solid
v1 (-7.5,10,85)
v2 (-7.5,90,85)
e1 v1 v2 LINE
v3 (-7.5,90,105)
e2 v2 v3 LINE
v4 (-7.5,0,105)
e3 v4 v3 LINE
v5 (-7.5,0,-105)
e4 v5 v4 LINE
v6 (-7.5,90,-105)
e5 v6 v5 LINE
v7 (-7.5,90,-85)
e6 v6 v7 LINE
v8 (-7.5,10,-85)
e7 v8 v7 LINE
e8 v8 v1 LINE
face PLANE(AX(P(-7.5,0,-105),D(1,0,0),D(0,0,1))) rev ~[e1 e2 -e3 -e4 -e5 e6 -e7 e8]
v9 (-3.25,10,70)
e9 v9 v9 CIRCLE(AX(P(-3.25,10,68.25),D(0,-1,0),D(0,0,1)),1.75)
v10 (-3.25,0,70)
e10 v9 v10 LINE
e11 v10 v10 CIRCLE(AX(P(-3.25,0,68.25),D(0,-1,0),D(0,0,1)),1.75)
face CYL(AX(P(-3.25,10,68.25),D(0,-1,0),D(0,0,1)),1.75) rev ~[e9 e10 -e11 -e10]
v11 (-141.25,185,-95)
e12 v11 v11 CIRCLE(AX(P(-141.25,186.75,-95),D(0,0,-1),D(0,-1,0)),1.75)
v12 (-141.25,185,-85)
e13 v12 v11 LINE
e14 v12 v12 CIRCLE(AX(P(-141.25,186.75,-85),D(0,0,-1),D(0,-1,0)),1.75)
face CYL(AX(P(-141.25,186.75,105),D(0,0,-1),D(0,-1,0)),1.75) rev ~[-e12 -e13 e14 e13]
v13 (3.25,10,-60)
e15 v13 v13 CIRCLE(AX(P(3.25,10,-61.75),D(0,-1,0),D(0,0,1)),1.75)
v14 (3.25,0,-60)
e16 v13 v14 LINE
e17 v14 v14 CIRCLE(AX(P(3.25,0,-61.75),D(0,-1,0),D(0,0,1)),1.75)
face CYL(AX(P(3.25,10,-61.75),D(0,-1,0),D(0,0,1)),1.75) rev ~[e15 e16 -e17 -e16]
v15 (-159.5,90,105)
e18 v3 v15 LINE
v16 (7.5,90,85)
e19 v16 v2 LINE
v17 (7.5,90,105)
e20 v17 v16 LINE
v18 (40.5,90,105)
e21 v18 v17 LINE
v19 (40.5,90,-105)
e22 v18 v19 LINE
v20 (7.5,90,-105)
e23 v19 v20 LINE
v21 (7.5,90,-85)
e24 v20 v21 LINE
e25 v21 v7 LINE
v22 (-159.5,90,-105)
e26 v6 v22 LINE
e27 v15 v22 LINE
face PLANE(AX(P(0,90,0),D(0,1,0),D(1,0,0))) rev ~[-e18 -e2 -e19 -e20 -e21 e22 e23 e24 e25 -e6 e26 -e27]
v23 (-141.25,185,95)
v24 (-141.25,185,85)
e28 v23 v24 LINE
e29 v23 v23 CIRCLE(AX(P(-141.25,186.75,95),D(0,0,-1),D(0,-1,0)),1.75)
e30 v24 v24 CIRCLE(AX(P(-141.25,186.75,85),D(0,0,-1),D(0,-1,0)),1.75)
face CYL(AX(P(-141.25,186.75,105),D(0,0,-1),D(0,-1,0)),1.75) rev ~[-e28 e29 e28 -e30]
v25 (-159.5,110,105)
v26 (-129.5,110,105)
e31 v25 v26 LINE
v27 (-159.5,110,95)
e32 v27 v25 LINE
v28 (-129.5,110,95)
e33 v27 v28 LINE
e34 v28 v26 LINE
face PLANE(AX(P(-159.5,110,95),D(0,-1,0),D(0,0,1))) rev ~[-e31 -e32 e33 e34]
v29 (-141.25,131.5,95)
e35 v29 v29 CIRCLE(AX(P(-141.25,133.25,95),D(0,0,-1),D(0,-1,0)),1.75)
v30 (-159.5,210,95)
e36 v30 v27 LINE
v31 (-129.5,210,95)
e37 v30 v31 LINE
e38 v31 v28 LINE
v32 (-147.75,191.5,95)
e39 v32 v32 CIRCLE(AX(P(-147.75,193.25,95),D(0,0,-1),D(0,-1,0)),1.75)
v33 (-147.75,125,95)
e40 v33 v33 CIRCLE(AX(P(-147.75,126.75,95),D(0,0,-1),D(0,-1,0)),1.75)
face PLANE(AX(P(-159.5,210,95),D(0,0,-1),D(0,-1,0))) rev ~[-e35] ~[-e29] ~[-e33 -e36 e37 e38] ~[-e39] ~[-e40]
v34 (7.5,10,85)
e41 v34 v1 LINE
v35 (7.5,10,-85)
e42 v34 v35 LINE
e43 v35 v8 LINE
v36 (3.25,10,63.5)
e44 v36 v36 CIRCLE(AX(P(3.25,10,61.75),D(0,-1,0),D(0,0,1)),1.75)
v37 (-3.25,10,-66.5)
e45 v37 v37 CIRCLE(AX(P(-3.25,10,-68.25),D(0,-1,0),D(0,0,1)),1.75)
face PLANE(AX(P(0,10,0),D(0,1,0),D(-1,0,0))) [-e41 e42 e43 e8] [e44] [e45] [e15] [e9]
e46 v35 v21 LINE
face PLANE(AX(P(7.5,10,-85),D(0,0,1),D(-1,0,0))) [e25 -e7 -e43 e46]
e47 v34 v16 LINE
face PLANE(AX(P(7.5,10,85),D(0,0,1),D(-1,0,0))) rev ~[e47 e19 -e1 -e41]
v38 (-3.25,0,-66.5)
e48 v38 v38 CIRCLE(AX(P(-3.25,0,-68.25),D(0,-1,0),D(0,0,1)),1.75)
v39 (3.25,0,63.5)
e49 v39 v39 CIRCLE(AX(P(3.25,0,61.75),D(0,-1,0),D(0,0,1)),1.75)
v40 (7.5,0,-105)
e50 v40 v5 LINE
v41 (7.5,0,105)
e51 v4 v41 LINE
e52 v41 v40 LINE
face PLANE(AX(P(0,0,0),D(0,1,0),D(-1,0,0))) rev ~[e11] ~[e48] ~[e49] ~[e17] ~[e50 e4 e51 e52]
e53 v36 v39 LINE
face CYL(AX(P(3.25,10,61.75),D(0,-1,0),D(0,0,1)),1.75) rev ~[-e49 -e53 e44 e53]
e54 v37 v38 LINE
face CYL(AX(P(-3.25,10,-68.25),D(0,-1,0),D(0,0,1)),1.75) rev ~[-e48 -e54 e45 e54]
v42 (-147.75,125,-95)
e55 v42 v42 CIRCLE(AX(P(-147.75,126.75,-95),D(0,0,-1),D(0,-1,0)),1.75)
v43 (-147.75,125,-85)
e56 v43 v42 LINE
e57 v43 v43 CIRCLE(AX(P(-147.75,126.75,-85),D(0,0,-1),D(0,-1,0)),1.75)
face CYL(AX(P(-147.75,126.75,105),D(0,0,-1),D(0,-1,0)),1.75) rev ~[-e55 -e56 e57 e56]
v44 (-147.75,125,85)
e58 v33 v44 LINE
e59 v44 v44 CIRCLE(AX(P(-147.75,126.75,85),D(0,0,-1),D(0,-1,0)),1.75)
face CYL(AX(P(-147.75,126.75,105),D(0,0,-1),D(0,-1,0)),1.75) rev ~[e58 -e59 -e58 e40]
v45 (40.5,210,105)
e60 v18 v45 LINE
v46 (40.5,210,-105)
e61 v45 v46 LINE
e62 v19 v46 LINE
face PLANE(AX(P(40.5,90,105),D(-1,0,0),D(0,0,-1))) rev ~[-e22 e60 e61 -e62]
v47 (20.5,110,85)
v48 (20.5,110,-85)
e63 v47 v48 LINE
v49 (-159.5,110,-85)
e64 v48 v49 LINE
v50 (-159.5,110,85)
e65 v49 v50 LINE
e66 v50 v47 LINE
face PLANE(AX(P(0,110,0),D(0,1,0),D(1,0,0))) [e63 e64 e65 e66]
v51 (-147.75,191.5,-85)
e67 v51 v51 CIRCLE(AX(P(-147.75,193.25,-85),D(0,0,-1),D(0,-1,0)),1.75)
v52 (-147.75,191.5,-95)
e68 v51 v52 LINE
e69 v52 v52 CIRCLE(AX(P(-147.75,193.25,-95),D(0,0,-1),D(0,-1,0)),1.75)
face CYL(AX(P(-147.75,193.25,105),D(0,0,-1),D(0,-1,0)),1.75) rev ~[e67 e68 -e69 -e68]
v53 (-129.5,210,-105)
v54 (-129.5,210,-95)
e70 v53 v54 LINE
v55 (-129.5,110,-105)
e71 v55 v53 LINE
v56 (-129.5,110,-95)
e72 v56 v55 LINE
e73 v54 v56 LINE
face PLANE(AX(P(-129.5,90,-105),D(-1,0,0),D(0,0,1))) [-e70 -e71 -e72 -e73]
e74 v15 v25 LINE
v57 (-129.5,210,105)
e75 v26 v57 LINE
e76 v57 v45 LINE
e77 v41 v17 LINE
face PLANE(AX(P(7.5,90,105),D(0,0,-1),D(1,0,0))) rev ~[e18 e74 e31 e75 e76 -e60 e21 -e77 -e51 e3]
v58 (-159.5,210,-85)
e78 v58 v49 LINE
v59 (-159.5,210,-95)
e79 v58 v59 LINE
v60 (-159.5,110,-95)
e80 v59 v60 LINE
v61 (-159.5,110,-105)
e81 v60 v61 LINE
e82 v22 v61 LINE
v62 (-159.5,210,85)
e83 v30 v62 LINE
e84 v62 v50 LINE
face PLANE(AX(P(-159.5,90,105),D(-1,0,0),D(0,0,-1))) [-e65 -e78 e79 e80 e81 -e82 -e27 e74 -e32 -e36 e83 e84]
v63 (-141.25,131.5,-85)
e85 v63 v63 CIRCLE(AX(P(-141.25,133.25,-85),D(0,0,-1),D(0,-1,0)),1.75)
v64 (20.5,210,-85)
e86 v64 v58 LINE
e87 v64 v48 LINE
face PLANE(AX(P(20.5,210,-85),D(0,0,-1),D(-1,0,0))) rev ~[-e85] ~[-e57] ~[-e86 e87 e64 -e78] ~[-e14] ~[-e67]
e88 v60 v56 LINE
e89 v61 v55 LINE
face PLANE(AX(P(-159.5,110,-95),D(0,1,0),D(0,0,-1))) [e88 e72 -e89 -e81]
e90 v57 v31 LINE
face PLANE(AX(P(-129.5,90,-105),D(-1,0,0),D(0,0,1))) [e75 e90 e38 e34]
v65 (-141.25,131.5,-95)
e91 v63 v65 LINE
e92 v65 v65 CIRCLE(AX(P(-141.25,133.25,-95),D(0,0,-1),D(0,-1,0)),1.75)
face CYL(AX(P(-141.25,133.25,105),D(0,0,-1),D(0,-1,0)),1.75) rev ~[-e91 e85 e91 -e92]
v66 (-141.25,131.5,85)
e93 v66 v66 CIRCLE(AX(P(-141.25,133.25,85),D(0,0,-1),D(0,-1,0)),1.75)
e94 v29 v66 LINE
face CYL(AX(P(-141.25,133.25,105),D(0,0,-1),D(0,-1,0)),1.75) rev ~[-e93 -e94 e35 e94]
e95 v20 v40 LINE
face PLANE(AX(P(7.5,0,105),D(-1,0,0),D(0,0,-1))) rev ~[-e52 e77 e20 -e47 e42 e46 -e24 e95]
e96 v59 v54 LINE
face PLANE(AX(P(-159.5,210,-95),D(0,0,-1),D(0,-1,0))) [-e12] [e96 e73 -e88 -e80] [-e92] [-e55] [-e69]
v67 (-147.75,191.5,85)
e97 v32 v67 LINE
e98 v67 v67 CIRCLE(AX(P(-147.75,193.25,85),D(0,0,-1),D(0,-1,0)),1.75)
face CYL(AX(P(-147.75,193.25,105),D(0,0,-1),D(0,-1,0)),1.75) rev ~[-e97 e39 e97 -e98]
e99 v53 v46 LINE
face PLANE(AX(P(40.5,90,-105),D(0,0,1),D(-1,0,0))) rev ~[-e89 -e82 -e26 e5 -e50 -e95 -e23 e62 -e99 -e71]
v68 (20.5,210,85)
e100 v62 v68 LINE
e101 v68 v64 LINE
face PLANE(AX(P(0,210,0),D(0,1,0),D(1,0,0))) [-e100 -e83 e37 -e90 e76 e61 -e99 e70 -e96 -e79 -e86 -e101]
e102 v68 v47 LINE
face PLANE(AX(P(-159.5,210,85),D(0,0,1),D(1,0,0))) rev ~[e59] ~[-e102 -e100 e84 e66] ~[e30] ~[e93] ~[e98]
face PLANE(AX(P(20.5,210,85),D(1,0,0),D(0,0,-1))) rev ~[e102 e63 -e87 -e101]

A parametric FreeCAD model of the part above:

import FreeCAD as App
import Part
import Sketcher
Q = App.Units.Quantity

doc = App.newDocument("Part")
body = doc.addObject("PartDesign::Body", "Body")

# Sketch on XZ plane
sketch1 = body.newObject("Sketcher::SketchObject", "Sketch")
sketch1.AttachmentSupport = (doc.getObject("XZ_Plane"), [""])
sketch1.MapMode = "FlatFace"
sketch1.addGeometry([
    Part.LineSegment(App.Vector(-8, -105, 0), App.Vector(-8, 105, 0)),
    Part.LineSegment(App.Vector(-8, 105, 0), App.Vector(8, 105, 0)),
    Part.LineSegment(App.Vector(8, 105, 0), App.Vector(8, -105, 0)),
    Part.LineSegment(App.Vector(8, -105, 0), App.Vector(-8, -105, 0)),
], False)
sketch1.addConstraint([
    Sketcher.Constraint("Coincident", 0, 2, 1, 1),
    Sketcher.Constraint("Coincident", 1, 2, 2, 1),
    Sketcher.Constraint("Coincident", 2, 2, 3, 1),
    Sketcher.Constraint("Coincident", 3, 2, 0, 1),
    Sketcher.Constraint("Vertical", 0),
    Sketcher.Constraint("Horizontal", 1),
    Sketcher.Constraint("Vertical", 2),
    Sketcher.Constraint("Horizontal", 3),
    Sketcher.Constraint("Symmetric", 0, 2, 2, 2, -1, 1),
    Sketcher.Constraint("DistanceX", 1, 1, 1, 2, Q("15 mm")),
    Sketcher.Constraint("DistanceY", 0, 1, 0, 2, Q("210 mm")),
])
pad1 = body.newObject("PartDesign::Pad", "Pad")
pad1.Profile = sketch1
pad1.Length = 10
pad1.Reversed = True

# Sketch on XZ plane
sketch2 = body.newObject("Sketcher::SketchObject", "Sketch001")
sketch2.AttachmentSupport = (doc.getObject("XZ_Plane"), [""])
sketch2.MapMode = "FlatFace"
sketch2.AttachmentOffset = App.Placement(App.Vector(0, 0, -10), App.Rotation())
sketch2.addGeometry([
    Part.Circle(App.Vector(3.2, -61.8, 0), App.Vector(0, 0, 1), 1.8),
    Part.Circle(App.Vector(-3.2, -68.2, 0), App.Vector(0, 0, 1), 1.8),
    Part.Circle(App.Vector(-3.2, 68.2, 0), App.Vector(0, 0, 1), 1.8),
    Part.Circle(App.Vector(3.2, 61.8, 0), App.Vector(0, 0, 1), 1.8),
], False)
sketch2.addConstraint([
    Sketcher.Constraint("Equal", 0, 1),
    Sketcher.Constraint("Equal", 1, 2),
    Sketcher.Constraint("Equal", 2, 3),
    Sketcher.Constraint("Symmetric", 1, 3, 2, 3, -1),
    Sketcher.Constraint("Symmetric", 0, 3, 3, 3, -1),
    Sketcher.Constraint("Diameter", 0, Q("3.5 mm")),
    Sketcher.Constraint("DistanceY", 0, 3, 2, 3, Q("130 mm")),
    Sketcher.Constraint("DistanceX", 1, 3, 0, 3, Q("6.5 mm")),
    Sketcher.Constraint("DistanceY", 1, 3, 0, 3, Q("6.5 mm")),
    Sketcher.Constraint("DistanceX", -1, 1, 0, 3, Q("3.25 mm")),
])
doc.recompute()
hole = body.newObject("PartDesign::Hole", "Hole")
hole.Profile = sketch2
hole.ThreadType = "None"
hole.Diameter = 3.5
hole.DepthType = "ThroughAll"
hole.Reversed = True

# Sketch on XZ plane
sketch3 = body.newObject("Sketcher::SketchObject", "Sketch002")
sketch3.AttachmentSupport = (doc.getObject("XZ_Plane"), [""])
sketch3.MapMode = "FlatFace"
sketch3.AttachmentOffset = App.Placement(App.Vector(0, 0, -10), App.Rotation())
sketch3.addGeometry([
    Part.LineSegment(App.Vector(8, -105, 0), App.Vector(-8, -105, 0)),  # 0
    Part.LineSegment(App.Vector(-8, -105, 0), App.Vector(-8, -85, 0)),  # 1
    Part.LineSegment(App.Vector(-8, -85, 0), App.Vector(8, -85, 0)),  # 2
    Part.LineSegment(App.Vector(8, -85, 0), App.Vector(8, -105, 0)),  # 3
    Part.LineSegment(App.Vector(8, 85, 0), App.Vector(-8, 85, 0)),  # 4
    Part.LineSegment(App.Vector(-8, 85, 0), App.Vector(-8, 105, 0)),  # 5
    Part.LineSegment(App.Vector(-8, 105, 0), App.Vector(8, 105, 0)),  # 6
    Part.LineSegment(App.Vector(8, 105, 0), App.Vector(8, 85, 0)),  # 7
], False)
sketch3.addConstraint([
    Sketcher.Constraint("Coincident", 0, 2, 1, 1),
    Sketcher.Constraint("Coincident", 1, 2, 2, 1),
    Sketcher.Constraint("Coincident", 2, 2, 3, 1),
    Sketcher.Constraint("Coincident", 3, 2, 0, 1),
    Sketcher.Constraint("Coincident", 4, 2, 5, 1),
    Sketcher.Constraint("Coincident", 5, 2, 6, 1),
    Sketcher.Constraint("Coincident", 6, 2, 7, 1),
    Sketcher.Constraint("Coincident", 7, 2, 4, 1),
    Sketcher.Constraint("Horizontal", 0),
    Sketcher.Constraint("Vertical", 1),
    Sketcher.Constraint("Horizontal", 2),
    Sketcher.Constraint("Vertical", 3),
    Sketcher.Constraint("Horizontal", 4),
    Sketcher.Constraint("Vertical", 5),
    Sketcher.Constraint("Horizontal", 6),
    Sketcher.Constraint("Vertical", 7),
    Sketcher.Constraint("Symmetric", 2, 2, 4, 2, -1, 1),
    Sketcher.Constraint("Symmetric", 0, 2, 6, 2, -1, 1),
    Sketcher.Constraint("Vertical", 1, 2, 4, 2),
    Sketcher.Constraint("DistanceX", 0, 2, 0, 1, Q("15 mm")),
    Sketcher.Constraint("DistanceY", 1, 1, 1, 2, Q("20 mm")),
    Sketcher.Constraint("DistanceY", 0, 2, -1, 1, Q("105 mm")),
])
pad2 = body.newObject("PartDesign::Pad", "Pad001")
pad2.Profile = sketch3
pad2.Length = 80
pad2.Reversed = True

# Sketch on XZ plane
sketch4 = body.newObject("Sketcher::SketchObject", "Sketch003")
sketch4.AttachmentSupport = (doc.getObject("XZ_Plane"), [""])
sketch4.MapMode = "FlatFace"
sketch4.AttachmentOffset = App.Placement(App.Vector(0, 0, -90), App.Rotation())
sketch4.addGeometry([
    Part.LineSegment(App.Vector(40, -105, 0), App.Vector(-160, -105, 0)),
    Part.LineSegment(App.Vector(-160, -105, 0), App.Vector(-160, 105, 0)),
    Part.LineSegment(App.Vector(-160, 105, 0), App.Vector(40, 105, 0)),
    Part.LineSegment(App.Vector(40, 105, 0), App.Vector(40, -105, 0)),
], False)
sketch4.addConstraint([
    Sketcher.Constraint("Coincident", 0, 2, 1, 1),
    Sketcher.Constraint("Coincident", 1, 2, 2, 1),
    Sketcher.Constraint("Coincident", 2, 2, 3, 1),
    Sketcher.Constraint("Coincident", 3, 2, 0, 1),
    Sketcher.Constraint("Horizontal", 0),
    Sketcher.Constraint("Vertical", 1),
    Sketcher.Constraint("Horizontal", 2),
    Sketcher.Constraint("Vertical", 3),
    Sketcher.Constraint("DistanceX", 0, 2, 0, 1, Q("200 mm")),
    Sketcher.Constraint("DistanceY", 1, 1, 1, 2, Q("210 mm")),
    Sketcher.Constraint("DistanceY", 0, 2, -1, 1, Q("105 mm")),
    Sketcher.Constraint("DistanceX", 0, 2, -1, 1, Q("159.5 mm")),
])
pad3 = body.newObject("PartDesign::Pad", "Pad002")
pad3.Profile = sketch4
pad3.Length = 120
pad3.Reversed = True

# Sketch on XZ plane
sketch5 = body.newObject("Sketcher::SketchObject", "Sketch004")
sketch5.AttachmentSupport = (doc.getObject("XZ_Plane"), [""])
sketch5.MapMode = "FlatFace"
sketch5.AttachmentOffset = App.Placement(App.Vector(0, 0, -210), App.Rotation())
sketch5.addGeometry([
    Part.LineSegment(App.Vector(20, -85, 0), App.Vector(-160, -85, 0)),
    Part.LineSegment(App.Vector(-160, -85, 0), App.Vector(-160, 85, 0)),
    Part.LineSegment(App.Vector(-160, 85, 0), App.Vector(20, 85, 0)),
    Part.LineSegment(App.Vector(20, 85, 0), App.Vector(20, -85, 0)),
], False)
sketch5.addConstraint([
    Sketcher.Constraint("Coincident", 0, 2, 1, 1),
    Sketcher.Constraint("Coincident", 1, 2, 2, 1),
    Sketcher.Constraint("Coincident", 2, 2, 3, 1),
    Sketcher.Constraint("Coincident", 3, 2, 0, 1),
    Sketcher.Constraint("Horizontal", 0),
    Sketcher.Constraint("Vertical", 1),
    Sketcher.Constraint("Horizontal", 2),
    Sketcher.Constraint("Vertical", 3),
    Sketcher.Constraint("DistanceX", 0, 2, 0, 1, Q("180 mm")),
    Sketcher.Constraint("DistanceY", 1, 1, 1, 2, Q("170 mm")),
    Sketcher.Constraint("DistanceY", 0, 2, -1, 1, Q("85 mm")),
    Sketcher.Constraint("DistanceX", 0, 2, -1, 1, Q("159.5 mm")),
])
pocket1 = body.newObject("PartDesign::Pocket", "Pocket")
pocket1.Profile = sketch5
pocket1.Length = 100
pocket1.Reversed = True

# Sketch on YZ plane
sketch6 = body.newObject("Sketcher::SketchObject", "Sketch005")
sketch6.AttachmentSupport = (doc.getObject("YZ_Plane"), [""])
sketch6.MapMode = "FlatFace"
sketch6.AttachmentOffset = App.Placement(App.Vector(0, 0, -159.5), App.Rotation())
sketch6.addGeometry([
    Part.LineSegment(App.Vector(210, -95, 0), App.Vector(210, -105, 0)),  # 0
    Part.LineSegment(App.Vector(210, -105, 0), App.Vector(110, -105, 0)),  # 1
    Part.LineSegment(App.Vector(110, -105, 0), App.Vector(110, -95, 0)),  # 2
    Part.LineSegment(App.Vector(110, -95, 0), App.Vector(210, -95, 0)),  # 3
    Part.LineSegment(App.Vector(210, 105, 0), App.Vector(210, 95, 0)),  # 4
    Part.LineSegment(App.Vector(210, 95, 0), App.Vector(110, 95, 0)),  # 5
    Part.LineSegment(App.Vector(110, 95, 0), App.Vector(110, 105, 0)),  # 6
    Part.LineSegment(App.Vector(110, 105, 0), App.Vector(210, 105, 0)),  # 7
], False)
sketch6.addConstraint([
    Sketcher.Constraint("Coincident", 0, 2, 1, 1),
    Sketcher.Constraint("Coincident", 1, 2, 2, 1),
    Sketcher.Constraint("Coincident", 2, 2, 3, 1),
    Sketcher.Constraint("Coincident", 3, 2, 0, 1),
    Sketcher.Constraint("Coincident", 4, 2, 5, 1),
    Sketcher.Constraint("Coincident", 5, 2, 6, 1),
    Sketcher.Constraint("Coincident", 6, 2, 7, 1),
    Sketcher.Constraint("Coincident", 7, 2, 4, 1),
    Sketcher.Constraint("Vertical", 0),
    Sketcher.Constraint("Horizontal", 1),
    Sketcher.Constraint("Vertical", 2),
    Sketcher.Constraint("Horizontal", 3),
    Sketcher.Constraint("Vertical", 4),
    Sketcher.Constraint("Horizontal", 5),
    Sketcher.Constraint("Vertical", 6),
    Sketcher.Constraint("Horizontal", 7),
    Sketcher.Constraint("Symmetric", 3, 2, 4, 2, -1),
    Sketcher.Constraint("Symmetric", 1, 2, 6, 2, -1),
    Sketcher.Constraint("DistanceY", 0, 2, 0, 1, Q("10 mm")),
    Sketcher.Constraint("DistanceX", 1, 2, 1, 1, Q("100 mm")),
    Sketcher.Constraint("DistanceX", -1, 1, 0, 2, Q("210 mm")),
    Sketcher.Constraint("DistanceY", 0, 2, -1, 1, Q("105 mm")),
])
pocket2 = body.newObject("PartDesign::Pocket", "Pocket001")
pocket2.Profile = sketch6
pocket2.Length = 30
pocket2.Reversed = True

# Sketch on XY plane
sketch7 = body.newObject("Sketcher::SketchObject", "Sketch006")
sketch7.AttachmentSupport = (doc.getObject("XY_Plane"), [""])
sketch7.MapMode = "FlatFace"
sketch7.AttachmentOffset = App.Placement(App.Vector(0, 0, 105), App.Rotation())
sketch7.addGeometry([
    Part.Circle(App.Vector(-147.8, 193.2, 0), App.Vector(0, 0, 1), 1.8),
    Part.Circle(App.Vector(-141.2, 186.8, 0), App.Vector(0, 0, 1), 1.8),
    Part.Circle(App.Vector(-147.8, 126.8, 0), App.Vector(0, 0, 1), 1.8),
    Part.Circle(App.Vector(-141.2, 133.2, 0), App.Vector(0, 0, 1), 1.8),
], False)
sketch7.addConstraint([
    Sketcher.Constraint("Equal", 0, 1),
    Sketcher.Constraint("Equal", 1, 2),
    Sketcher.Constraint("Equal", 2, 3),
    Sketcher.Constraint("Vertical", 0, 3, 2, 3),
    Sketcher.Constraint("Vertical", 1, 3, 3, 3),
    Sketcher.Constraint("Diameter", 0, Q("3.5 mm")),
    Sketcher.Constraint("DistanceY", 2, 3, 1, 3, Q("60 mm")),
    Sketcher.Constraint("DistanceY", 3, 3, 0, 3, Q("60 mm")),
    Sketcher.Constraint("DistanceX", 0, 3, 1, 3, Q("6.5 mm")),
    Sketcher.Constraint("DistanceY", 1, 3, 0, 3, Q("6.5 mm")),
    Sketcher.Constraint("DistanceX", 0, 3, -1, 1, Q("147.75 mm")),
    Sketcher.Constraint("DistanceY", -1, 1, 0, 3, Q("193.25 mm")),
])
doc.recompute()
hole2 = body.newObject("PartDesign::Hole", "Hole001")
hole2.Profile = sketch7
hole2.ThreadType = "None"
hole2.Diameter = 3.5
hole2.DepthType = "ThroughAll"

doc.recompute()
